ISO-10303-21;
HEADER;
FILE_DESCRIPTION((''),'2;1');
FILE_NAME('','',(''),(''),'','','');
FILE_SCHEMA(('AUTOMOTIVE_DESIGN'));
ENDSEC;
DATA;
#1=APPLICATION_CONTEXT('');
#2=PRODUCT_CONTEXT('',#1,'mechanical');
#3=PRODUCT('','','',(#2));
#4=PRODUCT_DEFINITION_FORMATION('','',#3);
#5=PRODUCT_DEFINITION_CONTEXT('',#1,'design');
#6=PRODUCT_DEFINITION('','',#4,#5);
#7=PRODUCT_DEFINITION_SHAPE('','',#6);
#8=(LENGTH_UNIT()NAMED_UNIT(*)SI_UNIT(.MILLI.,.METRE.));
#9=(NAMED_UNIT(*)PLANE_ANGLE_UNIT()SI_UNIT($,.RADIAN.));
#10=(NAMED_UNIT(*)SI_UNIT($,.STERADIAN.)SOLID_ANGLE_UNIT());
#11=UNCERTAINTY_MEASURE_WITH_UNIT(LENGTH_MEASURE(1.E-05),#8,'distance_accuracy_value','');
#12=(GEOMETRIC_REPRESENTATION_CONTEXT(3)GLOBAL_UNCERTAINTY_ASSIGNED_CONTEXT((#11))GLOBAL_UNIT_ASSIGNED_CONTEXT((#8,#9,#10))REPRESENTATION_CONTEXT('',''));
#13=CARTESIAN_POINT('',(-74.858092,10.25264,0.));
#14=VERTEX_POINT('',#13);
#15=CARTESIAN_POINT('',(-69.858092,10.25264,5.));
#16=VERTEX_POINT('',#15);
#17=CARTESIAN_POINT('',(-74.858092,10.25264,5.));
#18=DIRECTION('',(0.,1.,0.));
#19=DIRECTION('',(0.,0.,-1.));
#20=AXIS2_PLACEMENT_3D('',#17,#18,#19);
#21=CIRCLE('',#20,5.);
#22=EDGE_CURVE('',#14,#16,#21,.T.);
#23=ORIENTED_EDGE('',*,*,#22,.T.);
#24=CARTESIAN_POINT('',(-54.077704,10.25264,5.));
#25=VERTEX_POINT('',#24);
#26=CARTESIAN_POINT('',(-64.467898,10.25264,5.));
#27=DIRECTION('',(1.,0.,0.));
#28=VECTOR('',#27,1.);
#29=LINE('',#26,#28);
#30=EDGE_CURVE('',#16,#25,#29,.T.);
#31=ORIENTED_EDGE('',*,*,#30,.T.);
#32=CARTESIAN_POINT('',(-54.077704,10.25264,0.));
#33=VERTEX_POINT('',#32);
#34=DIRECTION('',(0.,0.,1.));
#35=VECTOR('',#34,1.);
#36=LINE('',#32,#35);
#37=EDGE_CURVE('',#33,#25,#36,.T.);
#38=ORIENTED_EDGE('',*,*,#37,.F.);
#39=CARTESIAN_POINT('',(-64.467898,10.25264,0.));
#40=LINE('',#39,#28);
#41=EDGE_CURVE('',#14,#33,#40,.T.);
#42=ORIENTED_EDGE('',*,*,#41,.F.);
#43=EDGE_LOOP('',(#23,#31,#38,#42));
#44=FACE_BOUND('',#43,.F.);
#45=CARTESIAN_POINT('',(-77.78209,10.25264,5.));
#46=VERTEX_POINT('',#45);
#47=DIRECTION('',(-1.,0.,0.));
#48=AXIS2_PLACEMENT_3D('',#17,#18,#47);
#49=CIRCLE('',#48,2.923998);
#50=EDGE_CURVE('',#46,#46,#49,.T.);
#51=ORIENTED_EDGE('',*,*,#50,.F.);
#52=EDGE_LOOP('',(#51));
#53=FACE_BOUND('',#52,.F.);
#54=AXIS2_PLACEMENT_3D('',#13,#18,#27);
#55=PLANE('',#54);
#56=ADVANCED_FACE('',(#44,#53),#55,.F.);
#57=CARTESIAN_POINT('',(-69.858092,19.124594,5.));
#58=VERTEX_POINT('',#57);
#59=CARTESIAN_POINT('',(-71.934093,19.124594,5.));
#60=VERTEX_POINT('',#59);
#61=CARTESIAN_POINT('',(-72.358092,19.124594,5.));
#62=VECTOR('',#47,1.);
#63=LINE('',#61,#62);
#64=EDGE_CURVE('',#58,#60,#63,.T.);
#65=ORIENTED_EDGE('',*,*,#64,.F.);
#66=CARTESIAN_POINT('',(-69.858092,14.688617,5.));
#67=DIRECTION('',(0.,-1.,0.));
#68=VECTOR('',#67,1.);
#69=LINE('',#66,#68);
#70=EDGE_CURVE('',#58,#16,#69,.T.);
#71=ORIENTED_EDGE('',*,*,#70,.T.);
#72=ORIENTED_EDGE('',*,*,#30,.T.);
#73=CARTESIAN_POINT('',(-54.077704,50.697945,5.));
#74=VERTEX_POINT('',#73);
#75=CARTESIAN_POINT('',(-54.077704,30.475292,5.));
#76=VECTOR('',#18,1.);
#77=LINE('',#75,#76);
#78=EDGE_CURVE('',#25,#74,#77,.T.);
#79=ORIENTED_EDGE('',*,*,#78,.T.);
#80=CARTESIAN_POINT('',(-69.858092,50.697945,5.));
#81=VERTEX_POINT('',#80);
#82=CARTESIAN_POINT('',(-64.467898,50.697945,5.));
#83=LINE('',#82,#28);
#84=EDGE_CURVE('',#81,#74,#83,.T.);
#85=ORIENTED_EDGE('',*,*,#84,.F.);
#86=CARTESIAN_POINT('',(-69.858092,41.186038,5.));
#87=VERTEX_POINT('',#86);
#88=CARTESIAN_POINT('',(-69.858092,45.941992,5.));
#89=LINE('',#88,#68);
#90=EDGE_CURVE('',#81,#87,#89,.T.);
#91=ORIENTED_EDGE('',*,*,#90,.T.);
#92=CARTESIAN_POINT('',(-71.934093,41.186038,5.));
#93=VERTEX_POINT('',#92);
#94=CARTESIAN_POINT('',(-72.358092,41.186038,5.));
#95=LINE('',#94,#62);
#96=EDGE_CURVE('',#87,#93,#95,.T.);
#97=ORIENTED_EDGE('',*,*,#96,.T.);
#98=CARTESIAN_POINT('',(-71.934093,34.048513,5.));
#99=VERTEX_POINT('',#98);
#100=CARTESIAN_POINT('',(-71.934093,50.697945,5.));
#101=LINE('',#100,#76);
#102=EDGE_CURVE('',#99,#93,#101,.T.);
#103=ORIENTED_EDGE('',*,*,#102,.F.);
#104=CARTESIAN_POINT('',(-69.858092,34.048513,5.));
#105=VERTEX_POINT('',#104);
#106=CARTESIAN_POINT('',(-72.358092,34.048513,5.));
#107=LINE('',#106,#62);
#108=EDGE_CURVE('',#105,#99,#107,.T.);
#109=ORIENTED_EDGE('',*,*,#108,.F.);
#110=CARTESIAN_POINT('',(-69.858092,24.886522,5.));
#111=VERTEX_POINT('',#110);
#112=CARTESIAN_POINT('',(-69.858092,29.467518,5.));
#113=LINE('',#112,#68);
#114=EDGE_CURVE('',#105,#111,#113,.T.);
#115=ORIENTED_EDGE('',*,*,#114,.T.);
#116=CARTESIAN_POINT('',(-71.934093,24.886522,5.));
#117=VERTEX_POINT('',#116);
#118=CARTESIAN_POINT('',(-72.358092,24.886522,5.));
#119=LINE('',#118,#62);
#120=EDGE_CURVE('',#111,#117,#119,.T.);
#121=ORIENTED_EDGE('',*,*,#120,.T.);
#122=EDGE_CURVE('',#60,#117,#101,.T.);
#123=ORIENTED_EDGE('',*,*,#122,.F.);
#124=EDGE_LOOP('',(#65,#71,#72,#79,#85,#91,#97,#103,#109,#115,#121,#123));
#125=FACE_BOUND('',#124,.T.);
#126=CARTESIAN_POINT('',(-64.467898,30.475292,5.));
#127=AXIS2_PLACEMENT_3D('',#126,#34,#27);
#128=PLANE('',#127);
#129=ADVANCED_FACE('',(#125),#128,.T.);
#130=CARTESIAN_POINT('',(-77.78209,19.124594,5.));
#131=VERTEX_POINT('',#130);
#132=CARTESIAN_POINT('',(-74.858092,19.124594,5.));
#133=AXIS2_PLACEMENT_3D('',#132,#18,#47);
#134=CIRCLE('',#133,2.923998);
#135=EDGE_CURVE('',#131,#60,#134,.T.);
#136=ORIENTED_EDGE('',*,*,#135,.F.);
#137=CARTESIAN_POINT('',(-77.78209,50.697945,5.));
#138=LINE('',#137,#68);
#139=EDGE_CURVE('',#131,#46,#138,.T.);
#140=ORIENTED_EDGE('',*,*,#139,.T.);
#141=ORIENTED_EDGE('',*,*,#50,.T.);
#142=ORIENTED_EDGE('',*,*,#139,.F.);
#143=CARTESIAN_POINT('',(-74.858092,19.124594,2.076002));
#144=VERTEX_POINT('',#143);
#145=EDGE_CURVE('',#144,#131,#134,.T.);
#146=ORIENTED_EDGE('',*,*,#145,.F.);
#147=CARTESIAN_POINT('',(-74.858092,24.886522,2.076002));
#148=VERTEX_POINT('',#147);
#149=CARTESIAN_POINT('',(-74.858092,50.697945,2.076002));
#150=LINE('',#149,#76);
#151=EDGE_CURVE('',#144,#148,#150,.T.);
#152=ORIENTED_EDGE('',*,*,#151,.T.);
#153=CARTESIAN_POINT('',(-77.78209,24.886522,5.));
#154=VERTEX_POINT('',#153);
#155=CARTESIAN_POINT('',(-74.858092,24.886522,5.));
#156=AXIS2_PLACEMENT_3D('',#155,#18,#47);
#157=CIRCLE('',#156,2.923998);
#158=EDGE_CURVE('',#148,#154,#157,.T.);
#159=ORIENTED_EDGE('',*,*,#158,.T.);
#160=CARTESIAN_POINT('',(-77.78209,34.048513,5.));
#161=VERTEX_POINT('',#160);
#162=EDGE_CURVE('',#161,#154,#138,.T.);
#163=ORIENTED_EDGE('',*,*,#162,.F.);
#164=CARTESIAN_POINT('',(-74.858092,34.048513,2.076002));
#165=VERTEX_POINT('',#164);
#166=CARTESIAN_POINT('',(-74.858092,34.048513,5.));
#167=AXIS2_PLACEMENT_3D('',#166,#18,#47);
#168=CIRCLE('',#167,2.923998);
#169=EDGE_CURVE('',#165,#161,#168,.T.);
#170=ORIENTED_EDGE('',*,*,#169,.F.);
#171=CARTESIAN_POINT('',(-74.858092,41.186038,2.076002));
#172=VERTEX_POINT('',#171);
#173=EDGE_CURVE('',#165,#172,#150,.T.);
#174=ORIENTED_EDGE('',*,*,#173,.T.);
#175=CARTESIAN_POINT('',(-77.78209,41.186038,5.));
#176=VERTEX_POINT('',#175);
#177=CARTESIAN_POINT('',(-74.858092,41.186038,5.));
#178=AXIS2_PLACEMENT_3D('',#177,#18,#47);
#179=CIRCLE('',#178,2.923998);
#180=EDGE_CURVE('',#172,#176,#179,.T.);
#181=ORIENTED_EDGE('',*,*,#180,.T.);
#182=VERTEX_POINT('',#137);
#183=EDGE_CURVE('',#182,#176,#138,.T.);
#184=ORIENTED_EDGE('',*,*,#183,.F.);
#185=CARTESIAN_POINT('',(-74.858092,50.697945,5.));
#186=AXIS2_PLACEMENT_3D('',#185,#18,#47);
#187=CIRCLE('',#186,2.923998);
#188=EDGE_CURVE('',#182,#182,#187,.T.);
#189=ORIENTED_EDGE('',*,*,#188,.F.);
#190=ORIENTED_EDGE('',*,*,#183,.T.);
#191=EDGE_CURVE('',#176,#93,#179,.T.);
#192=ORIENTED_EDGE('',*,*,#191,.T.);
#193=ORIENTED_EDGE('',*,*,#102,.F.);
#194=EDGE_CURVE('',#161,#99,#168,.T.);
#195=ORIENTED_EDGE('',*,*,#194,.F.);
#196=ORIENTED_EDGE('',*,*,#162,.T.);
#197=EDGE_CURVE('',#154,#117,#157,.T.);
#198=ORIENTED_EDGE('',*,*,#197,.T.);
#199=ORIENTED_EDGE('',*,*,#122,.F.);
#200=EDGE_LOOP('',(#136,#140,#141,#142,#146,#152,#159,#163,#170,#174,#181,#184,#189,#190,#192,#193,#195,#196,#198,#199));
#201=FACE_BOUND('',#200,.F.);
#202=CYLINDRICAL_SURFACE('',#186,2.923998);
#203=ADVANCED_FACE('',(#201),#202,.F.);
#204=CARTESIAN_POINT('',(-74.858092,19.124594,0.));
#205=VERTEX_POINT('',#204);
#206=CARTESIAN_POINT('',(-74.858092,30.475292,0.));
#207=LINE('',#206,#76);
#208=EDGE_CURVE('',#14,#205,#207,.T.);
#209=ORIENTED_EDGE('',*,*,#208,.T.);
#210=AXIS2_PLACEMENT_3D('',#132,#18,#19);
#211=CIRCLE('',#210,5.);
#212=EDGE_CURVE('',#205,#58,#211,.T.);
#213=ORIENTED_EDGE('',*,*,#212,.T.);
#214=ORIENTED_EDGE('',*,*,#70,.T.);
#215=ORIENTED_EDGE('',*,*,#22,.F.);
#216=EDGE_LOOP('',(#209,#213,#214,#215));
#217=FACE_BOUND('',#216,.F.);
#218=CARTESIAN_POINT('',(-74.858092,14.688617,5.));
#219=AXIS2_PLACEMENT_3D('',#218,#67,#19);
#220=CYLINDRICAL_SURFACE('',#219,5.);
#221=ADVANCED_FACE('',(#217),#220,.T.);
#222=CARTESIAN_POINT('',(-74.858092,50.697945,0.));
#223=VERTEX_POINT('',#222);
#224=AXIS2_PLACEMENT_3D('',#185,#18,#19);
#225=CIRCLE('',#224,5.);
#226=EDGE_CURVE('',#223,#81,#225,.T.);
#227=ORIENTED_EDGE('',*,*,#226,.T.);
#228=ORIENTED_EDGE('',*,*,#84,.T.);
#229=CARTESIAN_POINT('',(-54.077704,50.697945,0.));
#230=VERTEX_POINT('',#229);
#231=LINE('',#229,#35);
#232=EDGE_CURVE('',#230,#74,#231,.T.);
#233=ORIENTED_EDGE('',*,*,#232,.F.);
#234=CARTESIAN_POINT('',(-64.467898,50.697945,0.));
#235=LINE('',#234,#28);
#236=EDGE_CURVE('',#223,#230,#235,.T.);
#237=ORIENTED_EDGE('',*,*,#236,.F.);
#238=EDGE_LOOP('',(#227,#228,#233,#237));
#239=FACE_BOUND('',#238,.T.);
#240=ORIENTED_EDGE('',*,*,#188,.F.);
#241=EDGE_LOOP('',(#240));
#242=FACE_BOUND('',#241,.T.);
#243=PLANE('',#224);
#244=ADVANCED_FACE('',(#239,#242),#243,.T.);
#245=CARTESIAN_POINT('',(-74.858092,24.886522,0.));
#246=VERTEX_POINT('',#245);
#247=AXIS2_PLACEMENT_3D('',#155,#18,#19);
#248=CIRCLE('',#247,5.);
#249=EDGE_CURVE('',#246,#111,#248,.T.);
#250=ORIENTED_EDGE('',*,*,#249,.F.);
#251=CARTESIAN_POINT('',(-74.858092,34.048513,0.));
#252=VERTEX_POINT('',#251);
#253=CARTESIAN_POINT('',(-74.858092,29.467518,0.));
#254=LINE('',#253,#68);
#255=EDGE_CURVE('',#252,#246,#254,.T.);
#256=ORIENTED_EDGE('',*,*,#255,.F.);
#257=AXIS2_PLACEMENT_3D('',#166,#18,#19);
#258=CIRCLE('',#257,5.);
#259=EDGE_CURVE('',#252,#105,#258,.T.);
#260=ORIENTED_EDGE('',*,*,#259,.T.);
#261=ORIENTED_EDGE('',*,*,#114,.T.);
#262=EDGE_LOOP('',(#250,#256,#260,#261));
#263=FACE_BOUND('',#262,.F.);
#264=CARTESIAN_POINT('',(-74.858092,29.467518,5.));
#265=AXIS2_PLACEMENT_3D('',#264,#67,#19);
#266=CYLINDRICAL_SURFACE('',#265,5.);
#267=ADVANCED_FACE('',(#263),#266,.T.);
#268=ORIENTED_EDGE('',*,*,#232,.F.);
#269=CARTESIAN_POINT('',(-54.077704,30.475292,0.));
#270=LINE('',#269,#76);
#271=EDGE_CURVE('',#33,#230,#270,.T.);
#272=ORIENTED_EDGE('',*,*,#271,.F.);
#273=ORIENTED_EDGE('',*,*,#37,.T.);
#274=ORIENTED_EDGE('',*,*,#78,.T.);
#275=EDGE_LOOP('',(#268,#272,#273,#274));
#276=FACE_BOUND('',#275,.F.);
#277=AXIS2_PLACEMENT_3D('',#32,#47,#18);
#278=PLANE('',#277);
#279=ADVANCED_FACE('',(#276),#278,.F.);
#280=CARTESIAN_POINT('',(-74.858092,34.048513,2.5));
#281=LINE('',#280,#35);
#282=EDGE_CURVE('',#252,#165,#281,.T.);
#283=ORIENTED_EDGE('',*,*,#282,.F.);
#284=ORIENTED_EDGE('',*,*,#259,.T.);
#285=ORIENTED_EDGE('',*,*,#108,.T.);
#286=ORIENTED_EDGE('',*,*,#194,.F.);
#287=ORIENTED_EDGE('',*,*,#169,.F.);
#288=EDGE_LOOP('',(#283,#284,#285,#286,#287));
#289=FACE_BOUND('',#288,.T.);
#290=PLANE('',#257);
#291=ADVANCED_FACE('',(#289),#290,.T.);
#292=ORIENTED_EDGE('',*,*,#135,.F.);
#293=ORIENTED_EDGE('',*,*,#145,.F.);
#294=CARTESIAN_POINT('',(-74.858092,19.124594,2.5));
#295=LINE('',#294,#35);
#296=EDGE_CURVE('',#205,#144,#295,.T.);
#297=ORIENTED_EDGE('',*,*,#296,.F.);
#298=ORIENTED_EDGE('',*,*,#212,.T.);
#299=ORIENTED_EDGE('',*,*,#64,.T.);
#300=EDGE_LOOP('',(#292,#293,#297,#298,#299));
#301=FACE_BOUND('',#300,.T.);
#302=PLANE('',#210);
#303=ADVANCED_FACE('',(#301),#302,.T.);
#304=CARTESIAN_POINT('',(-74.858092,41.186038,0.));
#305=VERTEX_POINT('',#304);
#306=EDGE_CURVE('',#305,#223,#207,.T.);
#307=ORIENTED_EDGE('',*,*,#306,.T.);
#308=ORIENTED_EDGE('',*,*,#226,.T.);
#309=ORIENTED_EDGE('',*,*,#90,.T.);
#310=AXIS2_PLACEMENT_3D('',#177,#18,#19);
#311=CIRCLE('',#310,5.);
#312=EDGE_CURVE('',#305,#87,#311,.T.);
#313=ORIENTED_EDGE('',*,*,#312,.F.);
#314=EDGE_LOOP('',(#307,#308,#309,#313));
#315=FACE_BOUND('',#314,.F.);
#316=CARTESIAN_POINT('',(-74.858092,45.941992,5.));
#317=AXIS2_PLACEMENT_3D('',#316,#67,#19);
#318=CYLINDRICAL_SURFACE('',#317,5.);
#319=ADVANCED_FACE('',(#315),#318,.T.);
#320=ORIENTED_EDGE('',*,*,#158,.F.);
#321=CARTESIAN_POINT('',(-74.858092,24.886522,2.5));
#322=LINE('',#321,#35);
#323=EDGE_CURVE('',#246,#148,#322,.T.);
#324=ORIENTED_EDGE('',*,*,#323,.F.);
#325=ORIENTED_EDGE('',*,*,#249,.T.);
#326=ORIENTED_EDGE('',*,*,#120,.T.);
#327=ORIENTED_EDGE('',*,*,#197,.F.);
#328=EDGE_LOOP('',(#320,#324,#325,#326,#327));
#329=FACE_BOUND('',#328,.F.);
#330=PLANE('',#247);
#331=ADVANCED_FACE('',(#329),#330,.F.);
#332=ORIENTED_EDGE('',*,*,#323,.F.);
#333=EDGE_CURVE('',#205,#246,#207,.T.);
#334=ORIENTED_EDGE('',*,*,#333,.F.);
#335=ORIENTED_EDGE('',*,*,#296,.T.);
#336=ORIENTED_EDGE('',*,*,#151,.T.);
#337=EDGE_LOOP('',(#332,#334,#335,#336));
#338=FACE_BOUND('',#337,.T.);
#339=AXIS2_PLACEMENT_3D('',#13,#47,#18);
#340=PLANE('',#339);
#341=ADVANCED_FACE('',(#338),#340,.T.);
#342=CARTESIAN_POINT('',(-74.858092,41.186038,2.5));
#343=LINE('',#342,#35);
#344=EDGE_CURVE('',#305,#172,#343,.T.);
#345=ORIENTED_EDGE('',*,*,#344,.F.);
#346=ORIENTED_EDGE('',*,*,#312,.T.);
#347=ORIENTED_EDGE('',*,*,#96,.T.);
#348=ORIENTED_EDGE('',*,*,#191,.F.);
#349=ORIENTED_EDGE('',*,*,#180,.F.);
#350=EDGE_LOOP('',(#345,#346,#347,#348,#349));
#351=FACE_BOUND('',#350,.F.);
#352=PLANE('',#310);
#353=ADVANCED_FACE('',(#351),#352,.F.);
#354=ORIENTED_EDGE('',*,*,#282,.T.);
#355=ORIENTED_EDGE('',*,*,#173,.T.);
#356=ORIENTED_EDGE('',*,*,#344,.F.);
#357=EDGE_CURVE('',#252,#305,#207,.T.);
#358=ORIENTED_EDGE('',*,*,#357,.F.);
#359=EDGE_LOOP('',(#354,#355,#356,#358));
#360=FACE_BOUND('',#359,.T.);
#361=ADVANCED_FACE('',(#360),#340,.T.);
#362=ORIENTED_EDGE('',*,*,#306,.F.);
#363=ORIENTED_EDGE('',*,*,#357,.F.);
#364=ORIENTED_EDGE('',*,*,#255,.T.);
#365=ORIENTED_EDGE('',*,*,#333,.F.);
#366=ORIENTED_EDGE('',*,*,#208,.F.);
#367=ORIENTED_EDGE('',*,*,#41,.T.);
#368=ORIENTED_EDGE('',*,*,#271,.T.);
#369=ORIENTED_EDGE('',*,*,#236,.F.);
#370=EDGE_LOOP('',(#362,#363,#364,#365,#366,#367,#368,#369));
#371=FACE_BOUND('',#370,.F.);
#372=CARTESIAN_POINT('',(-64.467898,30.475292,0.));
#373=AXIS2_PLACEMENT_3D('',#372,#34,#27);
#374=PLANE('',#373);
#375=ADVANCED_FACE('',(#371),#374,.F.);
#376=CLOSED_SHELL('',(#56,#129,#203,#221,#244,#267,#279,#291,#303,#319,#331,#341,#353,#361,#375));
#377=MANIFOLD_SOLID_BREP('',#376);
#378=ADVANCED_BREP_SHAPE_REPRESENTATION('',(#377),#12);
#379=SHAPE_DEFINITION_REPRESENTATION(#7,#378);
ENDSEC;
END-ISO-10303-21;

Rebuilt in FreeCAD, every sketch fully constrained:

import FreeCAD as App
import Part
import Sketcher
from FreeCAD import Vector

doc = App.newDocument("Part")
params = doc.addObject("Spreadsheet::Sheet", "Params")
for row, (alias, value) in enumerate([
    ("pad1_length", "5 mm"),
    ("sketch2_height", "5 mm"),
    ("revolution_angle", "270 deg"),
    ("pocket1_length", "100 mm"),
], start=1):
    params.set(f"A{row}", alias)
    params.set(f"B{row}", "=" + value)
    params.setAlias(f"B{row}", alias)

body = doc.addObject("PartDesign::Body", "Body")

sketch1 = body.newObject("Sketcher::SketchObject", "Sketch")
sketch1.AttachmentSupport = (doc.getObject("XY_Plane"), [""])
sketch1.MapMode = "FlatFace"
sketch1.addGeometry(Part.LineSegment(Vector(-75, 51, 0), Vector(-75, 10, 0)), False)
sketch1.addGeometry(Part.LineSegment(Vector(-75, 10, 0), Vector(-54, 10, 0)), False)
sketch1.addGeometry(Part.LineSegment(Vector(-54, 10, 0), Vector(-54, 51, 0)), False)
sketch1.addGeometry(Part.LineSegment(Vector(-54, 51, 0), Vector(-75, 51, 0)), False)
sketch1.addConstraint(Sketcher.Constraint("Coincident", 0, 2, 1, 1))
sketch1.addConstraint(Sketcher.Constraint("Coincident", 1, 2, 2, 1))
sketch1.addConstraint(Sketcher.Constraint("Coincident", 2, 2, 3, 1))
sketch1.addConstraint(Sketcher.Constraint("Coincident", 3, 2, 0, 1))
sketch1.addConstraint(Sketcher.Constraint("Vertical", 0))
sketch1.addConstraint(Sketcher.Constraint("Horizontal", 1))
sketch1.addConstraint(Sketcher.Constraint("Vertical", 2))
sketch1.addConstraint(Sketcher.Constraint("Horizontal", 3))
sketch1.addConstraint(Sketcher.Constraint("DistanceX", 1, 1, 1, 2, 20.780388))
sketch1.addConstraint(Sketcher.Constraint("DistanceY", 0, 2, 0, 1, 40.445305))
sketch1.addConstraint(Sketcher.Constraint("DistanceX", 0, 2, -1, 1, 74.858092))
sketch1.addConstraint(Sketcher.Constraint("DistanceY", -1, 1, 0, 2, 10.25264))
pad1 = body.newObject("PartDesign::Pad", "Pad")
pad1.Profile = sketch1
pad1.setExpression("Length", "Params.pad1_length")

sketch2 = body.newObject("Sketcher::SketchObject", "Sketch001")
sketch2.AttachmentSupport = (doc.getObject("YZ_Plane"), [""])
sketch2.MapMode = "FlatFace"
sketch2.AttachmentOffset = App.Placement(Vector(0, 0, -74.858092), App.Rotation())
sketch2.addGeometry(Part.LineSegment(Vector(51, 5, 0), Vector(51, 0, 0)), False)
sketch2.addGeometry(Part.LineSegment(Vector(51, 0, 0), Vector(41, 0, 0)), False)
sketch2.addGeometry(Part.LineSegment(Vector(41, 0, 0), Vector(41, 5, 0)), False)
sketch2.addGeometry(Part.LineSegment(Vector(41, 5, 0), Vector(51, 5, 0)), False)
sketch2.addGeometry(Part.LineSegment(Vector(34, 5, 0), Vector(34, 0, 0)), False)
sketch2.addGeometry(Part.LineSegment(Vector(34, 0, 0), Vector(25, 0, 0)), False)
sketch2.addGeometry(Part.LineSegment(Vector(25, 0, 0), Vector(25, 5, 0)), False)
sketch2.addGeometry(Part.LineSegment(Vector(25, 5, 0), Vector(34, 5, 0)), False)
sketch2.addGeometry(Part.LineSegment(Vector(19, 5, 0), Vector(19, 0, 0)), False)
sketch2.addGeometry(Part.LineSegment(Vector(19, 0, 0), Vector(10, 0, 0)), False)
sketch2.addGeometry(Part.LineSegment(Vector(10, 0, 0), Vector(10, 5, 0)), False)
sketch2.addGeometry(Part.LineSegment(Vector(10, 5, 0), Vector(19, 5, 0)), False)
sketch2.addGeometry(Part.LineSegment(Vector(10, 5, 0), Vector(51, 5, 0)), True)
sketch2.addConstraint(Sketcher.Constraint("Coincident", 0, 2, 1, 1))
sketch2.addConstraint(Sketcher.Constraint("Coincident", 1, 2, 2, 1))
sketch2.addConstraint(Sketcher.Constraint("Coincident", 2, 2, 3, 1))
sketch2.addConstraint(Sketcher.Constraint("Coincident", 3, 2, 0, 1))
sketch2.addConstraint(Sketcher.Constraint("Coincident", 4, 2, 5, 1))
sketch2.addConstraint(Sketcher.Constraint("Coincident", 5, 2, 6, 1))
sketch2.addConstraint(Sketcher.Constraint("Coincident", 6, 2, 7, 1))
sketch2.addConstraint(Sketcher.Constraint("Coincident", 7, 2, 4, 1))
sketch2.addConstraint(Sketcher.Constraint("Coincident", 8, 2, 9, 1))
sketch2.addConstraint(Sketcher.Constraint("Coincident", 9, 2, 10, 1))
sketch2.addConstraint(Sketcher.Constraint("Coincident", 10, 2, 11, 1))
sketch2.addConstraint(Sketcher.Constraint("Coincident", 11, 2, 8, 1))
sketch2.addConstraint(Sketcher.Constraint("Vertical", 0))
sketch2.addConstraint(Sketcher.Constraint("Horizontal", 1))
sketch2.addConstraint(Sketcher.Constraint("Vertical", 2))
sketch2.addConstraint(Sketcher.Constraint("Horizontal", 3))
sketch2.addConstraint(Sketcher.Constraint("Vertical", 4))
sketch2.addConstraint(Sketcher.Constraint("Horizontal", 5))
sketch2.addConstraint(Sketcher.Constraint("Vertical", 6))
sketch2.addConstraint(Sketcher.Constraint("Horizontal", 7))
sketch2.addConstraint(Sketcher.Constraint("Vertical", 8))
sketch2.addConstraint(Sketcher.Constraint("Horizontal", 9))
sketch2.addConstraint(Sketcher.Constraint("Vertical", 10))
sketch2.addConstraint(Sketcher.Constraint("Horizontal", 11))
sketch2.addConstraint(Sketcher.Constraint("Horizontal", 12))
sketch2.addConstraint(Sketcher.Constraint("Coincident", 12, 1, 10, 2))
sketch2.addConstraint(Sketcher.Constraint("Coincident", 12, 2, 3, 2))
sketch2.addConstraint(Sketcher.Constraint("PointOnObject", 0, 2, -1))
sketch2.addConstraint(Sketcher.Constraint("PointOnObject", 4, 2, -1))
sketch2.addConstraint(Sketcher.Constraint("PointOnObject", 8, 2, -1))
sketch2.addConstraint(Sketcher.Constraint("Horizontal", 3, 2, 6, 2))
sketch2.addConstraint(Sketcher.Constraint("DistanceY", 0, 2, 0, 1, 5.0))
sketch2.addConstraint(Sketcher.Constraint("DistanceX", 5, 2, 5, 1, 9.16199))
sketch2.addConstraint(Sketcher.Constraint("DistanceX", 1, 2, 1, 1, 9.511907))
sketch2.addConstraint(Sketcher.Constraint("DistanceX", 9, 2, 9, 1, 8.871954))
sketch2.addConstraint(Sketcher.Constraint("DistanceX", 12, 1, 12, 2, 40.445305))
sketch2.addConstraint(Sketcher.Constraint("DistanceX", -1, 1, 1, 2, 41.186038))
sketch2.addConstraint(Sketcher.Constraint("DistanceX", 8, 2, 5, 2, 5.761929))
sketch2.setExpression("Constraints[31]", "Params.sketch2_height")
revolution = body.newObject("PartDesign::Revolution", "Revolution")
revolution.Profile = sketch2
revolution.ReferenceAxis = (sketch2, ["Axis0"])
revolution.setExpression("Angle", "Params.revolution_angle")

sketch3 = body.newObject("Sketcher::SketchObject", "Sketch002")
sketch3.AttachmentSupport = (doc.getObject("XZ_Plane"), [""])
sketch3.MapMode = "FlatFace"
sketch3.AttachmentOffset = App.Placement(Vector(0, 0, -50.697945), App.Rotation())
sketch3.addGeometry(Part.Circle(Vector(-74.9, 5, 0), Vector(0, 0, 1), 2.9), False)
sketch3.addConstraint(Sketcher.Constraint("DistanceY", -1, 1, 0, 3, 5.0))
sketch3.addConstraint(Sketcher.Constraint("Diameter", 0, 5.847997))
sketch3.addConstraint(Sketcher.Constraint("DistanceX", 0, 3, -1, 1, 74.858092))
pocket1 = body.newObject("PartDesign::Pocket", "Pocket")
pocket1.Profile = sketch3
pocket1.setExpression("Length", "Params.pocket1_length")
pocket1.Reversed = True

doc.recompute()
